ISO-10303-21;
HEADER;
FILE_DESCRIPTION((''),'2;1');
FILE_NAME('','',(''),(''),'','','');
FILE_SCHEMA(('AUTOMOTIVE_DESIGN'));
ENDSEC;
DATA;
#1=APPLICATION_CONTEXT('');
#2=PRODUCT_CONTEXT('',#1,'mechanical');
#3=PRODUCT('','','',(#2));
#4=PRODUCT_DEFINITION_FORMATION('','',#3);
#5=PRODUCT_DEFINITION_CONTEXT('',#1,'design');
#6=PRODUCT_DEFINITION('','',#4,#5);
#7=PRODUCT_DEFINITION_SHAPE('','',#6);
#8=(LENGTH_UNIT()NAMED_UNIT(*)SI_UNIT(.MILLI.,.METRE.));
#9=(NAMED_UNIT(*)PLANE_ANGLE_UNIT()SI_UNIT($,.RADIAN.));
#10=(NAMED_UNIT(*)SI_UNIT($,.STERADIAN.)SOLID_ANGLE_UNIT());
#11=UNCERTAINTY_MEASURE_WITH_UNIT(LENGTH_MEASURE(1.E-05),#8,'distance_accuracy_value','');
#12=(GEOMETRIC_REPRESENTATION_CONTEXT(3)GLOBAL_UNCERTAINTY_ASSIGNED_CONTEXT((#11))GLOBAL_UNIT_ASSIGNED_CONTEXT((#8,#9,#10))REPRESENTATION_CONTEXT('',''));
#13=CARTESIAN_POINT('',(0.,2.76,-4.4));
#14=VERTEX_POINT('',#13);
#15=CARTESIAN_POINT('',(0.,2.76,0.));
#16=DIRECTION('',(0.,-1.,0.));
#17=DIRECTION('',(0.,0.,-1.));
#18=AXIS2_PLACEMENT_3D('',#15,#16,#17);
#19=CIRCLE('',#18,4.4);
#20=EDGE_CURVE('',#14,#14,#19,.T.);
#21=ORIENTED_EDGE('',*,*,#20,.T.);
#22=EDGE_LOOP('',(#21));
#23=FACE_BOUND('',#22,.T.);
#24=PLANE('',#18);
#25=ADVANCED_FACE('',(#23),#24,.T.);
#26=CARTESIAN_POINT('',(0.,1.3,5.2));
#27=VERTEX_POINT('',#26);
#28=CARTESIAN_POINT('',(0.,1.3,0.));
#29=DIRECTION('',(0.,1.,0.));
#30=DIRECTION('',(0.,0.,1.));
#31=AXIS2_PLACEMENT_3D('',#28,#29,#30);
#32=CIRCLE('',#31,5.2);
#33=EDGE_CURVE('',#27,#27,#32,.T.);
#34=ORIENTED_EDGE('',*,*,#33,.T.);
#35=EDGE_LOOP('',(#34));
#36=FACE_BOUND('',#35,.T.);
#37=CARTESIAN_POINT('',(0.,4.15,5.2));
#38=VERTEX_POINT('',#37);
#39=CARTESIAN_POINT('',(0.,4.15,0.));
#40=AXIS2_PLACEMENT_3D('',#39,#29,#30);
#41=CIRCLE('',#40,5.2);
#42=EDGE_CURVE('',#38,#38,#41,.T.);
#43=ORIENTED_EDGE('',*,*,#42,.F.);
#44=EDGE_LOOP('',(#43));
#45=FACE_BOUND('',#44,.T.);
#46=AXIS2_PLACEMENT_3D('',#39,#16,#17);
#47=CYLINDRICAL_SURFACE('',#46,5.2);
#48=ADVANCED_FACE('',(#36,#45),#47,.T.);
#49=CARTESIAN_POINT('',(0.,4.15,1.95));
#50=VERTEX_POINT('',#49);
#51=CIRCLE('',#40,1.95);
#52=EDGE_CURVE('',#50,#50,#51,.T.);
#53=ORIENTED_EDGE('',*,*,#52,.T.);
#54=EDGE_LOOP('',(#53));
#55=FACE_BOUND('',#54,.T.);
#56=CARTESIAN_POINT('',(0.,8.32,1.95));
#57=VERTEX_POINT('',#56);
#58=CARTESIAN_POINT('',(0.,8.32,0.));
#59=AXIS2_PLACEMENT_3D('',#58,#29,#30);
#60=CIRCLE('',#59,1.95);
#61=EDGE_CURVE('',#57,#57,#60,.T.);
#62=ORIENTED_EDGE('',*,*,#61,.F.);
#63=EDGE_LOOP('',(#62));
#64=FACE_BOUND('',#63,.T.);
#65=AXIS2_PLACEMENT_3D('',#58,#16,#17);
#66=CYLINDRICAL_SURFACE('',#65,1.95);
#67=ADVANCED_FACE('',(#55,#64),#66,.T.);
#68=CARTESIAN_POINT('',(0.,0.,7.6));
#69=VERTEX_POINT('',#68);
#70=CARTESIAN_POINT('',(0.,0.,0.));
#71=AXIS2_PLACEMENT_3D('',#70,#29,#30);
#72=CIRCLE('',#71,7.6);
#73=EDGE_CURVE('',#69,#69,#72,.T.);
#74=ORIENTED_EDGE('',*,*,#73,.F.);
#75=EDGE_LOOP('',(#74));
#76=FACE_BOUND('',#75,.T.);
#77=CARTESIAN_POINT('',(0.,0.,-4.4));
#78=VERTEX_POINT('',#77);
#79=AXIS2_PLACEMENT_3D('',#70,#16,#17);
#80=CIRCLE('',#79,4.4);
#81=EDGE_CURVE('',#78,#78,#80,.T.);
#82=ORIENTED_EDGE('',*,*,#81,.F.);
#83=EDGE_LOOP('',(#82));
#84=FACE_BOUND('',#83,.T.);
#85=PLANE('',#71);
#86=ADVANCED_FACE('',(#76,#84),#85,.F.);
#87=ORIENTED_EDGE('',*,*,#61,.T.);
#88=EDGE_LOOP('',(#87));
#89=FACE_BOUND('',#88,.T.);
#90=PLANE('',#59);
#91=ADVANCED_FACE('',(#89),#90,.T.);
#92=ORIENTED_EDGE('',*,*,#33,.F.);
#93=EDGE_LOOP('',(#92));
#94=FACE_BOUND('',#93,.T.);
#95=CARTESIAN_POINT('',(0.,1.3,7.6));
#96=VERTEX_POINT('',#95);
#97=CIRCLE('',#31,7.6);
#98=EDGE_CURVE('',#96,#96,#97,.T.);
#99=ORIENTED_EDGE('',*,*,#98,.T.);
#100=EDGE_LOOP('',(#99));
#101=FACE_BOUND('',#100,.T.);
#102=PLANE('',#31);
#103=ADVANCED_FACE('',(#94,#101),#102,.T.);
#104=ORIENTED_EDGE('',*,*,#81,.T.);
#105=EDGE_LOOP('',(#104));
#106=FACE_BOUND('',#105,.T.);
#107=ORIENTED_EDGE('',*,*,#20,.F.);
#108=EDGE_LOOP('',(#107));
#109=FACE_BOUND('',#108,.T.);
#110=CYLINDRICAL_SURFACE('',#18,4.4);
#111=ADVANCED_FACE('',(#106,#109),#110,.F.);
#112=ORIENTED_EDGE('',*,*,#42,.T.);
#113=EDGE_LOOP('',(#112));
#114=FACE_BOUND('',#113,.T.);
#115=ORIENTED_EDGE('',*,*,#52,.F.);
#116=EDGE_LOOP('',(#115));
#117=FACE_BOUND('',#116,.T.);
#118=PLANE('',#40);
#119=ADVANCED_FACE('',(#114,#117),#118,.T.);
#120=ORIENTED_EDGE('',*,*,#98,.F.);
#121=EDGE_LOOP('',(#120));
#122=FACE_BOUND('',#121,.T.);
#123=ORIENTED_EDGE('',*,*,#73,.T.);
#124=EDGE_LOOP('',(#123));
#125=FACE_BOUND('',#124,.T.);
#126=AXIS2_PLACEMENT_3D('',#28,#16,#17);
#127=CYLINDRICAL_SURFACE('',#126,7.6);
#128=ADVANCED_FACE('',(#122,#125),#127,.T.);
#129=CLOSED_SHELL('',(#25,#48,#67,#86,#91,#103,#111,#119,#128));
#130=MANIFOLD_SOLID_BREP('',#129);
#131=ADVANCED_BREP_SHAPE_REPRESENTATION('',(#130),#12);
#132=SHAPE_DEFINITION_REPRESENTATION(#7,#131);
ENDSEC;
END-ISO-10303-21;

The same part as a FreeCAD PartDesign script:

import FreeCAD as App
import Part
import Sketcher
Q = App.Units.Quantity

doc = App.newDocument("Part")
body = doc.addObject("PartDesign::Body", "Body")

# Sketch on XZ plane
sketch1 = body.newObject("Sketcher::SketchObject", "Sketch")
sketch1.AttachmentSupport = (doc.getObject("XZ_Plane"), [""])
sketch1.MapMode = "FlatFace"
sketch1.addGeometry(Part.Circle(App.Vector(0, 0, 0), App.Vector(0, 0, 1), 8), False)
sketch1.addConstraint([
    Sketcher.Constraint("Coincident", 0, 3, -1, 1),
    Sketcher.Constraint("Diameter", 0, Q("15.2 mm")),
])
pad1 = body.newObject("PartDesign::Pad", "Pad")
pad1.Profile = sketch1
pad1.Length = 1.3
pad1.Reversed = True

# Sketch on XZ plane
sketch2 = body.newObject("Sketcher::SketchObject", "Sketch001")
sketch2.AttachmentSupport = (doc.getObject("XZ_Plane"), [""])
sketch2.MapMode = "FlatFace"
sketch2.AttachmentOffset = App.Placement(App.Vector(0, 0, -1.3), App.Rotation())
sketch2.addGeometry(Part.Circle(App.Vector(0, 0, 0), App.Vector(0, 0, 1), 5), False)
sketch2.addConstraint([
    Sketcher.Constraint("Coincident", 0, 3, -1, 1),
    Sketcher.Constraint("Diameter", 0, Q("10.4 mm")),
])
pad2 = body.newObject("PartDesign::Pad", "Pad001")
pad2.Profile = sketch2
pad2.Length = 2.85
pad2.Reversed = True

# Sketch on XZ plane
sketch3 = body.newObject("Sketcher::SketchObject", "Sketch002")
sketch3.AttachmentSupport = (doc.getObject("XZ_Plane"), [""])
sketch3.MapMode = "FlatFace"
sketch3.AttachmentOffset = App.Placement(App.Vector(0, 0, -4.15), App.Rotation())
sketch3.addGeometry(Part.Circle(App.Vector(0, 0, 0), App.Vector(0, 0, 1), 1.9), False)
sketch3.addConstraint([
    Sketcher.Constraint("Coincident", 0, 3, -1, 1),
    Sketcher.Constraint("Diameter", 0, Q("3.9 mm")),
])
pad3 = body.newObject("PartDesign::Pad", "Pad002")
pad3.Profile = sketch3
pad3.Length = 4.17
pad3.Reversed = True

# Sketch on XZ plane
sketch4 = body.newObject("Sketcher::SketchObject", "Sketch003")
sketch4.AttachmentSupport = (doc.getObject("XZ_Plane"), [""])
sketch4.MapMode = "FlatFace"
sketch4.addGeometry(Part.Circle(App.Vector(0, 0, 0), App.Vector(0, 0, 1), 4.4), False)
sketch4.addConstraint([
    Sketcher.Constraint("Coincident", 0, 3, -1, 1),
    Sketcher.Constraint("Diameter", 0, Q("8.8 mm")),
])
pocket1 = body.newObject("PartDesign::Pocket", "Pocket")
pocket1.Profile = sketch4
pocket1.Length = 2.76

doc.recompute()
